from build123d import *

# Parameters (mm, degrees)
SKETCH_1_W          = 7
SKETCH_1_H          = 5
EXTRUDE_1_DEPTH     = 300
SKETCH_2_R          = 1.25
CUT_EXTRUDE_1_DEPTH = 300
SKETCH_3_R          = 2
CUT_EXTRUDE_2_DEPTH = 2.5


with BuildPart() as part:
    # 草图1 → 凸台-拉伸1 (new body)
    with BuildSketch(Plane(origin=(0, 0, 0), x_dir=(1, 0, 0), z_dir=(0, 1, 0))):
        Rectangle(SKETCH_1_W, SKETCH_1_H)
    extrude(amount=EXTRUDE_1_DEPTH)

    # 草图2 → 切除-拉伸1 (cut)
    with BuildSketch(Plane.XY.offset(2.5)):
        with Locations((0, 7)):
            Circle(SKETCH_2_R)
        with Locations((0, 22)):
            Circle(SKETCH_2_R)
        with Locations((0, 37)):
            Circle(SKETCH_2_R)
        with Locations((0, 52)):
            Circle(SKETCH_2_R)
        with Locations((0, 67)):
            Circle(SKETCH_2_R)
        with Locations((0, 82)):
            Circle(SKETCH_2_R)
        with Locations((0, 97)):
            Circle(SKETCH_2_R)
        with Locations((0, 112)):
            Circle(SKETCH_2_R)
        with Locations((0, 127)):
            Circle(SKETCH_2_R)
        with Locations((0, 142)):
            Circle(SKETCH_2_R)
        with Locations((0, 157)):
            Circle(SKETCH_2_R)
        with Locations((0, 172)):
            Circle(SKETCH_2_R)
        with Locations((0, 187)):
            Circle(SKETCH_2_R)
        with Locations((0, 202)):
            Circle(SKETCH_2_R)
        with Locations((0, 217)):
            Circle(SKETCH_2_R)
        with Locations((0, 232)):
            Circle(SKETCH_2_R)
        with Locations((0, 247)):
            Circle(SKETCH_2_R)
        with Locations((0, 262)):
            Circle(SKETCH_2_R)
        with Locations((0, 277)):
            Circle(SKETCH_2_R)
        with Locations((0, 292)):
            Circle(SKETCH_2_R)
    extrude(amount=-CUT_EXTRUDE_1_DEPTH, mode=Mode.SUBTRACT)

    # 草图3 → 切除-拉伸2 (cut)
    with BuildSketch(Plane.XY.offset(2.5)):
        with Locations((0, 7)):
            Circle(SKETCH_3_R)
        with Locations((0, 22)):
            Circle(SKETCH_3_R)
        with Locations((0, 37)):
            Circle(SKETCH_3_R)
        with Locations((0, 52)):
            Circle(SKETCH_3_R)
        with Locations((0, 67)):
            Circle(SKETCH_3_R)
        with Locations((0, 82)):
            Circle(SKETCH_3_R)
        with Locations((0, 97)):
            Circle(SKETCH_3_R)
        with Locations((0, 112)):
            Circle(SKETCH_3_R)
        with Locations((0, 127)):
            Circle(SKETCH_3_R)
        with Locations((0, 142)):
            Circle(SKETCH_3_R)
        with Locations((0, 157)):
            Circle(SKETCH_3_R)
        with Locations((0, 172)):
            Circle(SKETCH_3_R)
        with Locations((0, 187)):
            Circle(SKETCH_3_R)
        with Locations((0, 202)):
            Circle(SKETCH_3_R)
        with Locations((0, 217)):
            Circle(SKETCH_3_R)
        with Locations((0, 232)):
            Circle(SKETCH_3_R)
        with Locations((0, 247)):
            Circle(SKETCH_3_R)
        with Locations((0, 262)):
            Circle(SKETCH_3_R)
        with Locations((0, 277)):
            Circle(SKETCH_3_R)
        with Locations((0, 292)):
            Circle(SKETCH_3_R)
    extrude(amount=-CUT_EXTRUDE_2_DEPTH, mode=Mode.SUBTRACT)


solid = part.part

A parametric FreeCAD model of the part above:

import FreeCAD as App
import Part
import Sketcher
Q = App.Units.Quantity


def add_polygon(sketch, points):
    """Adds a closed chain of lines whose ends are joined by coincident constraints."""
    first, n = sketch.GeometryCount, len(points)
    for a, b in zip(points, points[1:] + points[:1]):
        sketch.addGeometry(Part.LineSegment(App.Vector(*a, 0), App.Vector(*b, 0)), False)
    for i in range(n):
        sketch.addConstraint(Sketcher.Constraint("Coincident", first + i, 2, first + (i + 1) % n, 1))

doc = App.newDocument("Part")
body = doc.addObject("PartDesign::Body", "Body")

# Sketch on XZ plane
sketch1 = doc.addObject("Sketcher::SketchObject", "Sketch")
body.addObject(sketch1)
sketch1.AttachmentSupport = (doc.XZ_Plane, [""])
sketch1.MapMode = "FlatFace"
add_polygon(sketch1, [(-3.5, -2.5), (-3.5, 2.5), (3.5, 2.5), (3.5, -2.5)])  # lines 0-3
sketch1.addConstraint([
    Sketcher.Constraint("Vertical", 0),
    Sketcher.Constraint("Horizontal", 1),
    Sketcher.Constraint("Vertical", 2),
    Sketcher.Constraint("Horizontal", 3),
    Sketcher.Constraint("Symmetric", 0, 2, 2, 2, -1, 1),
    Sketcher.Constraint("DistanceX", 1, 1, 1, 2, Q("7 mm")),
    Sketcher.Constraint("DistanceY", 0, 1, 0, 2, Q("5 mm")),
])
pad1 = doc.addObject("PartDesign::Pad", "Pad")
body.addObject(pad1)
pad1.Profile = sketch1
pad1.Length = 300
pad1.Reversed = True

# Sketch on XY plane
sketch2 = doc.addObject("Sketcher::SketchObject", "Sketch001")
body.addObject(sketch2)
sketch2.AttachmentSupport = (doc.XY_Plane, [""])
sketch2.MapMode = "FlatFace"
sketch2.AttachmentOffset = App.Placement(App.Vector(0, 0, 2.5), App.Rotation())
sketch2.addGeometry([
    Part.Circle(App.Vector(0, 7, 0), App.Vector(0, 0, 1), 1.25),  # 0
    Part.Circle(App.Vector(0, 22, 0), App.Vector(0, 0, 1), 1.25),  # 1
    Part.Circle(App.Vector(0, 37, 0), App.Vector(0, 0, 1), 1.25),  # 2
    Part.Circle(App.Vector(0, 52, 0), App.Vector(0, 0, 1), 1.25),  # 3
    Part.Circle(App.Vector(0, 67, 0), App.Vector(0, 0, 1), 1.25),  # 4
    Part.Circle(App.Vector(0, 82, 0), App.Vector(0, 0, 1), 1.25),  # 5
    Part.Circle(App.Vector(0, 97, 0), App.Vector(0, 0, 1), 1.25),  # 6
    Part.Circle(App.Vector(0, 112, 0), App.Vector(0, 0, 1), 1.25),  # 7
    Part.Circle(App.Vector(0, 127, 0), App.Vector(0, 0, 1), 1.25),  # 8
    Part.Circle(App.Vector(0, 142, 0), App.Vector(0, 0, 1), 1.25),  # 9
    Part.Circle(App.Vector(0, 157, 0), App.Vector(0, 0, 1), 1.25),  # 10
    Part.Circle(App.Vector(0, 172, 0), App.Vector(0, 0, 1), 1.25),  # 11
    Part.Circle(App.Vector(0, 187, 0), App.Vector(0, 0, 1), 1.25),  # 12
    Part.Circle(App.Vector(0, 202, 0), App.Vector(0, 0, 1), 1.25),  # 13
    Part.Circle(App.Vector(0, 217, 0), App.Vector(0, 0, 1), 1.25),  # 14
    Part.Circle(App.Vector(0, 232, 0), App.Vector(0, 0, 1), 1.25),  # 15
    Part.Circle(App.Vector(0, 247, 0), App.Vector(0, 0, 1), 1.25),  # 16
    Part.Circle(App.Vector(0, 262, 0), App.Vector(0, 0, 1), 1.25),  # 17
    Part.Circle(App.Vector(0, 277, 0), App.Vector(0, 0, 1), 1.25),  # 18
    Part.Circle(App.Vector(0, 292, 0), App.Vector(0, 0, 1), 1.25),  # 19
], False)
sketch2.addConstraint([
    Sketcher.Constraint("Equal", 0, 1),
    Sketcher.Constraint("Equal", 1, 2),
    Sketcher.Constraint("Equal", 2, 3),
    Sketcher.Constraint("Equal", 3, 4),
    Sketcher.Constraint("Equal", 4, 5),
    Sketcher.Constraint("Equal", 5, 6),
    Sketcher.Constraint("Equal", 6, 7),
    Sketcher.Constraint("Equal", 7, 8),
    Sketcher.Constraint("Equal", 8, 9),
    Sketcher.Constraint("Equal", 9, 10),
    Sketcher.Constraint("Equal", 10, 11),
    Sketcher.Constraint("Equal", 11, 12),
    Sketcher.Constraint("Equal", 12, 13),
    Sketcher.Constraint("Equal", 13, 14),
    Sketcher.Constraint("Equal", 14, 15),
    Sketcher.Constraint("Equal", 15, 16),
    Sketcher.Constraint("Equal", 16, 17),
    Sketcher.Constraint("Equal", 17, 18),
    Sketcher.Constraint("Equal", 18, 19),
    Sketcher.Constraint("PointOnObject", 0, 3, -2),
    Sketcher.Constraint("PointOnObject", 1, 3, -2),
    Sketcher.Constraint("PointOnObject", 2, 3, -2),
    Sketcher.Constraint("PointOnObject", 3, 3, -2),
    Sketcher.Constraint("PointOnObject", 4, 3, -2),
    Sketcher.Constraint("PointOnObject", 5, 3, -2),
    Sketcher.Constraint("PointOnObject", 6, 3, -2),
    Sketcher.Constraint("PointOnObject", 7, 3, -2),
    Sketcher.Constraint("PointOnObject", 8, 3, -2),
    Sketcher.Constraint("PointOnObject", 9, 3, -2),
    Sketcher.Constraint("PointOnObject", 10, 3, -2),
    Sketcher.Constraint("PointOnObject", 11, 3, -2),
    Sketcher.Constraint("PointOnObject", 12, 3, -2),
    Sketcher.Constraint("PointOnObject", 13, 3, -2),
    Sketcher.Constraint("PointOnObject", 14, 3, -2),
    Sketcher.Constraint("PointOnObject", 15, 3, -2),
    Sketcher.Constraint("PointOnObject", 16, 3, -2),
    Sketcher.Constraint("PointOnObject", 17, 3, -2),
    Sketcher.Constraint("PointOnObject", 18, 3, -2),
    Sketcher.Constraint("PointOnObject", 19, 3, -2),
    Sketcher.Constraint("Diameter", 0, Q("2.5 mm")),
    Sketcher.Constraint("DistanceY", -1, 1, 0, 3, Q("7 mm")),
    Sketcher.Constraint("DistanceY", -1, 1, 1, 3, Q("22 mm")),
    Sketcher.Constraint("DistanceY", -1, 1, 2, 3, Q("37 mm")),
    Sketcher.Constraint("DistanceY", -1, 1, 3, 3, Q("52 mm")),
    Sketcher.Constraint("DistanceY", -1, 1, 4, 3, Q("67 mm")),
    Sketcher.Constraint("DistanceY", -1, 1, 5, 3, Q("82 mm")),
    Sketcher.Constraint("DistanceY", -1, 1, 6, 3, Q("97 mm")),
    Sketcher.Constraint("DistanceY", -1, 1, 7, 3, Q("112 mm")),
    Sketcher.Constraint("DistanceY", -1, 1, 8, 3, Q("127 mm")),
    Sketcher.Constraint("DistanceY", -1, 1, 9, 3, Q("142 mm")),
    Sketcher.Constraint("DistanceY", -1, 1, 10, 3, Q("157 mm")),
    Sketcher.Constraint("DistanceY", -1, 1, 11, 3, Q("172 mm")),
    Sketcher.Constraint("DistanceY", -1, 1, 12, 3, Q("187 mm")),
    Sketcher.Constraint("DistanceY", -1, 1, 13, 3, Q("202 mm")),
    Sketcher.Constraint("DistanceY", -1, 1, 14, 3, Q("217 mm")),
    Sketcher.Constraint("DistanceY", -1, 1, 15, 3, Q("232 mm")),
    Sketcher.Constraint("DistanceY", -1, 1, 16, 3, Q("247 mm")),
    Sketcher.Constraint("DistanceY", -1, 1, 17, 3, Q("262 mm")),
    Sketcher.Constraint("DistanceY", -1, 1, 18, 3, Q("277 mm")),
    Sketcher.Constraint("DistanceY", -1, 1, 19, 3, Q("292 mm")),
])
pocket1 = doc.addObject("PartDesign::Pocket", "Pocket")
body.addObject(pocket1)
pocket1.Profile = sketch2
pocket1.Length = 300

# Sketch on XY plane
sketch3 = doc.addObject("Sketcher::SketchObject", "Sketch002")
body.addObject(sketch3)
sketch3.AttachmentSupport = (doc.XY_Plane, [""])
sketch3.MapMode = "FlatFace"
sketch3.AttachmentOffset = App.Placement(App.Vector(0, 0, 2.5), App.Rotation())
sketch3.addGeometry([
    Part.Circle(App.Vector(0, 7, 0), App.Vector(0, 0, 1), 2),  # 0
    Part.Circle(App.Vector(0, 22, 0), App.Vector(0, 0, 1), 2),  # 1
    Part.Circle(App.Vector(0, 37, 0), App.Vector(0, 0, 1), 2),  # 2
    Part.Circle(App.Vector(0, 52, 0), App.Vector(0, 0, 1), 2),  # 3
    Part.Circle(App.Vector(0, 67, 0), App.Vector(0, 0, 1), 2),  # 4
    Part.Circle(App.Vector(0, 82, 0), App.Vector(0, 0, 1), 2),  # 5
    Part.Circle(App.Vector(0, 97, 0), App.Vector(0, 0, 1), 2),  # 6
    Part.Circle(App.Vector(0, 112, 0), App.Vector(0, 0, 1), 2),  # 7
    Part.Circle(App.Vector(0, 127, 0), App.Vector(0, 0, 1), 2),  # 8
    Part.Circle(App.Vector(0, 142, 0), App.Vector(0, 0, 1), 2),  # 9
    Part.Circle(App.Vector(0, 157, 0), App.Vector(0, 0, 1), 2),  # 10
    Part.Circle(App.Vector(0, 172, 0), App.Vector(0, 0, 1), 2),  # 11
    Part.Circle(App.Vector(0, 187, 0), App.Vector(0, 0, 1), 2),  # 12
    Part.Circle(App.Vector(0, 202, 0), App.Vector(0, 0, 1), 2),  # 13
    Part.Circle(App.Vector(0, 217, 0), App.Vector(0, 0, 1), 2),  # 14
    Part.Circle(App.Vector(0, 232, 0), App.Vector(0, 0, 1), 2),  # 15
    Part.Circle(App.Vector(0, 247, 0), App.Vector(0, 0, 1), 2),  # 16
    Part.Circle(App.Vector(0, 262, 0), App.Vector(0, 0, 1), 2),  # 17
    Part.Circle(App.Vector(0, 277, 0), App.Vector(0, 0, 1), 2),  # 18
    Part.Circle(App.Vector(0, 292, 0), App.Vector(0, 0, 1), 2),  # 19
], False)
sketch3.addConstraint([
    Sketcher.Constraint("Equal", 0, 1),
    Sketcher.Constraint("Equal", 1, 2),
    Sketcher.Constraint("Equal", 2, 3),
    Sketcher.Constraint("Equal", 3, 4),
    Sketcher.Constraint("Equal", 4, 5),
    Sketcher.Constraint("Equal", 5, 6),
    Sketcher.Constraint("Equal", 6, 7),
    Sketcher.Constraint("Equal", 7, 8),
    Sketcher.Constraint("Equal", 8, 9),
    Sketcher.Constraint("Equal", 9, 10),
    Sketcher.Constraint("Equal", 10, 11),
    Sketcher.Constraint("Equal", 11, 12),
    Sketcher.Constraint("Equal", 12, 13),
    Sketcher.Constraint("Equal", 13, 14),
    Sketcher.Constraint("Equal", 14, 15),
    Sketcher.Constraint("Equal", 15, 16),
    Sketcher.Constraint("Equal", 16, 17),
    Sketcher.Constraint("Equal", 17, 18),
    Sketcher.Constraint("Equal", 18, 19),
    Sketcher.Constraint("PointOnObject", 0, 3, -2),
    Sketcher.Constraint("PointOnObject", 1, 3, -2),
    Sketcher.Constraint("PointOnObject", 2, 3, -2),
    Sketcher.Constraint("PointOnObject", 3, 3, -2),
    Sketcher.Constraint("PointOnObject", 4, 3, -2),
    Sketcher.Constraint("PointOnObject", 5, 3, -2),
    Sketcher.Constraint("PointOnObject", 6, 3, -2),
    Sketcher.Constraint("PointOnObject", 7, 3, -2),
    Sketcher.Constraint("PointOnObject", 8, 3, -2),
    Sketcher.Constraint("PointOnObject", 9, 3, -2),
    Sketcher.Constraint("PointOnObject", 10, 3, -2),
    Sketcher.Constraint("PointOnObject", 11, 3, -2),
    Sketcher.Constraint("PointOnObject", 12, 3, -2),
    Sketcher.Constraint("PointOnObject", 13, 3, -2),
    Sketcher.Constraint("PointOnObject", 14, 3, -2),
    Sketcher.Constraint("PointOnObject", 15, 3, -2),
    Sketcher.Constraint("PointOnObject", 16, 3, -2),
    Sketcher.Constraint("PointOnObject", 17, 3, -2),
    Sketcher.Constraint("PointOnObject", 18, 3, -2),
    Sketcher.Constraint("PointOnObject", 19, 3, -2),
    Sketcher.Constraint("Diameter", 0, Q("4 mm")),
    Sketcher.Constraint("DistanceY", -1, 1, 0, 3, Q("7 mm")),
    Sketcher.Constraint("DistanceY", -1, 1, 1, 3, Q("22 mm")),
    Sketcher.Constraint("DistanceY", -1, 1, 2, 3, Q("37 mm")),
    Sketcher.Constraint("DistanceY", -1, 1, 3, 3, Q("52 mm")),
    Sketcher.Constraint("DistanceY", -1, 1, 4, 3, Q("67 mm")),
    Sketcher.Constraint("DistanceY", -1, 1, 5, 3, Q("82 mm")),
    Sketcher.Constraint("DistanceY", -1, 1, 6, 3, Q("97 mm")),
    Sketcher.Constraint("DistanceY", -1, 1, 7, 3, Q("112 mm")),
    Sketcher.Constraint("DistanceY", -1, 1, 8, 3, Q("127 mm")),
    Sketcher.Constraint("DistanceY", -1, 1, 9, 3, Q("142 mm")),
    Sketcher.Constraint("DistanceY", -1, 1, 10, 3, Q("157 mm")),
    Sketcher.Constraint("DistanceY", -1, 1, 11, 3, Q("172 mm")),
    Sketcher.Constraint("DistanceY", -1, 1, 12, 3, Q("187 mm")),
    Sketcher.Constraint("DistanceY", -1, 1, 13, 3, Q("202 mm")),
    Sketcher.Constraint("DistanceY", -1, 1, 14, 3, Q("217 mm")),
    Sketcher.Constraint("DistanceY", -1, 1, 15, 3, Q("232 mm")),
    Sketcher.Constraint("DistanceY", -1, 1, 16, 3, Q("247 mm")),
    Sketcher.Constraint("DistanceY", -1, 1, 17, 3, Q("262 mm")),
    Sketcher.Constraint("DistanceY", -1, 1, 18, 3, Q("277 mm")),
    Sketcher.Constraint("DistanceY", -1, 1, 19, 3, Q("292 mm")),
])
pocket2 = doc.addObject("PartDesign::Pocket", "Pocket001")
body.addObject(pocket2)
pocket2.Profile = sketch3
pocket2.Length = 2.5

doc.recompute()
